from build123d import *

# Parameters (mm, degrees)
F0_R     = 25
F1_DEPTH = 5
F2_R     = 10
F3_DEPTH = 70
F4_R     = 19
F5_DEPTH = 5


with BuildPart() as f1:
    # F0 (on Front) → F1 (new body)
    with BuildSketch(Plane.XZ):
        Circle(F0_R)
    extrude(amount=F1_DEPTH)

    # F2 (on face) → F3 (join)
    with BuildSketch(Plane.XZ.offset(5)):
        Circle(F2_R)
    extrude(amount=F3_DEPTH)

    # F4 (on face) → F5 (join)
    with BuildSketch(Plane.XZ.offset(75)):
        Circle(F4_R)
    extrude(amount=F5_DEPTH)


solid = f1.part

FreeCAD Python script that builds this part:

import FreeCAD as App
import Part
import Sketcher
from FreeCAD import Vector
Q = App.Units.Quantity

doc = App.newDocument("Part")
body = doc.addObject("PartDesign::Body", "Body")

sketch1 = body.newObject("Sketcher::SketchObject", "Sketch")
sketch1.AttachmentSupport = (doc.getObject("XZ_Plane"), [""])
sketch1.MapMode = "FlatFace"
sketch1.addGeometry(Part.Circle(Vector(0, 0, 0), Vector(0, 0, 1), 25), False)
sketch1.addConstraint([
    Sketcher.Constraint("Coincident", 0, 3, -1, 1),
    Sketcher.Constraint("Diameter", 0, Q("50 mm")),
])
pad1 = body.newObject("PartDesign::Pad", "Pad")
pad1.Profile = sketch1
pad1.Length = 5

sketch2 = body.newObject("Sketcher::SketchObject", "Sketch001")
sketch2.AttachmentSupport = (doc.getObject("XZ_Plane"), [""])
sketch2.MapMode = "FlatFace"
sketch2.AttachmentOffset = App.Placement(Vector(0, 0, 5), App.Rotation())
sketch2.addGeometry(Part.Circle(Vector(0, 0, 0), Vector(0, 0, 1), 10), False)
sketch2.addConstraint([
    Sketcher.Constraint("Coincident", 0, 3, -1, 1),
    Sketcher.Constraint("Diameter", 0, Q("20 mm")),
])
pad2 = body.newObject("PartDesign::Pad", "Pad001")
pad2.Profile = sketch2
pad2.Length = 70

sketch3 = body.newObject("Sketcher::SketchObject", "Sketch002")
sketch3.AttachmentSupport = (doc.getObject("XZ_Plane"), [""])
sketch3.MapMode = "FlatFace"
sketch3.AttachmentOffset = App.Placement(Vector(0, 0, 75), App.Rotation())
sketch3.addGeometry(Part.Circle(Vector(0, 0, 0), Vector(0, 0, 1), 19), False)
sketch3.addConstraint([
    Sketcher.Constraint("Coincident", 0, 3, -1, 1),
    Sketcher.Constraint("Diameter", 0, Q("38 mm")),
])
pad3 = body.newObject("PartDesign::Pad", "Pad002")
pad3.Profile = sketch3
pad3.Length = 5

doc.recompute()
